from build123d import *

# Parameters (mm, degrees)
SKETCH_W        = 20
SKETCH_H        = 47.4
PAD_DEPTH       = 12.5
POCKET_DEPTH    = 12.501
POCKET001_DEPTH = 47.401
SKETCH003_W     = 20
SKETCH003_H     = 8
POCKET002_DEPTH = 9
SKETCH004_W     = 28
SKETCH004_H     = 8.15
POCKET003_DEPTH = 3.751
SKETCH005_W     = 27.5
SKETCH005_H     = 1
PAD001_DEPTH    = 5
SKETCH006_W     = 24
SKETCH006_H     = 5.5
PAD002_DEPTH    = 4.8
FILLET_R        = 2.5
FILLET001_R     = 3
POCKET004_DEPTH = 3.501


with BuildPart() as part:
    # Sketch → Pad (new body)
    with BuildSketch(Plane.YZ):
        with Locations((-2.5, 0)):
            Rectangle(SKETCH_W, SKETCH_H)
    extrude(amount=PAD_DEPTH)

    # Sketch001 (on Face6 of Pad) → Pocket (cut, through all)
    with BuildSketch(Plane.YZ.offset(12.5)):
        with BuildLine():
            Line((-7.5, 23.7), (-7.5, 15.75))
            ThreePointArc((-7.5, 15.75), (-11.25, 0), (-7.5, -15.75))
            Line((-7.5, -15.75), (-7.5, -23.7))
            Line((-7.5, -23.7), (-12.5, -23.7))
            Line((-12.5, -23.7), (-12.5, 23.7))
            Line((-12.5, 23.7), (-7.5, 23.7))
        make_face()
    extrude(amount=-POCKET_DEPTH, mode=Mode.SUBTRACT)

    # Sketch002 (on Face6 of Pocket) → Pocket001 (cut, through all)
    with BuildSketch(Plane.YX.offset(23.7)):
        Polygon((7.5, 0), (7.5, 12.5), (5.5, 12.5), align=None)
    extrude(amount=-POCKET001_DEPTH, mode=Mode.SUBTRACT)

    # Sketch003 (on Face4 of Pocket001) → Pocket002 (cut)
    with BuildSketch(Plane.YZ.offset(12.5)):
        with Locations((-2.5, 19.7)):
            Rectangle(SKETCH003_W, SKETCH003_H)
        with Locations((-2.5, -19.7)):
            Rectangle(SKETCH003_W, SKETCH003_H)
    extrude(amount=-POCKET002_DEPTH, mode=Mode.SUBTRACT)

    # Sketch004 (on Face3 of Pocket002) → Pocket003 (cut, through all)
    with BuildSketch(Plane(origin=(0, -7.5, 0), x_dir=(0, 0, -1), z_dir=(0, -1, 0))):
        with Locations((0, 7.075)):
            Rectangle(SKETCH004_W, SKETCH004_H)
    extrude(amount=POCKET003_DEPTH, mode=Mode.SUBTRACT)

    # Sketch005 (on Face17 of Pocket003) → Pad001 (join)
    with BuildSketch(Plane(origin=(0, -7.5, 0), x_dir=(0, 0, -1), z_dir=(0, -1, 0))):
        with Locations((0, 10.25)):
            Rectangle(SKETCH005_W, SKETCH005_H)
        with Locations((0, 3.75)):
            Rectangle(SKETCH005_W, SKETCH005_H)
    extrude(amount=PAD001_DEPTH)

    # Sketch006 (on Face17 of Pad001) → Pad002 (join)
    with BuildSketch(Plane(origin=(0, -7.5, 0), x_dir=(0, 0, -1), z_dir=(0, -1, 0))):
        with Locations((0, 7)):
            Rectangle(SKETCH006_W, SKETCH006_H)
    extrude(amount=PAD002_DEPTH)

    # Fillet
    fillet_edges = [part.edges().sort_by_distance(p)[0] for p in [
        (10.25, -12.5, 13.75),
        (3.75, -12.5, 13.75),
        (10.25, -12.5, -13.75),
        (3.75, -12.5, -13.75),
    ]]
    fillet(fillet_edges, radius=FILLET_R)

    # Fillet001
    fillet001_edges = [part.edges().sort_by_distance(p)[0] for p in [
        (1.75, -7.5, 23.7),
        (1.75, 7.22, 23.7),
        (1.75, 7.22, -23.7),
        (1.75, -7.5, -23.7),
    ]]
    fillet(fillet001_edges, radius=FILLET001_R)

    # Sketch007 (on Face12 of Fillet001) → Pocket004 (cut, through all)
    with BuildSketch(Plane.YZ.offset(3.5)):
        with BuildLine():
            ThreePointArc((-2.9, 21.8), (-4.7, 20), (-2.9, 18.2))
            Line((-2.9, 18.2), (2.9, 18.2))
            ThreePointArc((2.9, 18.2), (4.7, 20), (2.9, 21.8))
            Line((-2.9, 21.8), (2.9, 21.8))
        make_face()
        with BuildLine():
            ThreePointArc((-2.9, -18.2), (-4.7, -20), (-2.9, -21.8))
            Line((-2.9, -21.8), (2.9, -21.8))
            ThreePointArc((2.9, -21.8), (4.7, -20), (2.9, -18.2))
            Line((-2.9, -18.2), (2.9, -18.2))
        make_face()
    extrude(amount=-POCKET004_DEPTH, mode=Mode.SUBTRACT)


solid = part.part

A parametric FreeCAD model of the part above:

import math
import FreeCAD as App
import Part
import Sketcher

V = App.Vector
Q = App.Units.Quantity


def edges_at(feature, points):
    """Names of the edges that pass closest to the given points."""
    edges = feature.Shape.Edges
    near = lambda p: min(range(len(edges)), key=lambda i: edges[i].distToShape(Part.Vertex(*p))[0])
    return sorted({f"Edge{near(p) + 1}" for p in points})

doc = App.newDocument("Part")
body = doc.addObject("PartDesign::Body", "Body")

# Sketch on YZ plane
sketch1 = doc.addObject("Sketcher::SketchObject", "Sketch")
body.addObject(sketch1)
sketch1.AttachmentSupport = (doc.YZ_Plane, [""])
sketch1.MapMode = "FlatFace"
sketch1.addGeometry([
    Part.LineSegment(V(-12, 24, 0), V(-12, -24, 0)),
    Part.LineSegment(V(-12, -24, 0), V(8, -24, 0)),
    Part.LineSegment(V(8, -24, 0), V(8, 24, 0)),
    Part.LineSegment(V(8, 24, 0), V(-12, 24, 0)),
], False)
sketch1.addConstraint([
    Sketcher.Constraint("Coincident", 0, 2, 1, 1),
    Sketcher.Constraint("Coincident", 1, 2, 2, 1),
    Sketcher.Constraint("Coincident", 2, 2, 3, 1),
    Sketcher.Constraint("Coincident", 3, 2, 0, 1),
    Sketcher.Constraint("Vertical", 0),
    Sketcher.Constraint("Horizontal", 1),
    Sketcher.Constraint("Vertical", 2),
    Sketcher.Constraint("Horizontal", 3),
    Sketcher.Constraint("DistanceX", 1, 1, 1, 2, Q("20 mm")),
    Sketcher.Constraint("DistanceY", 0, 2, 0, 1, Q("47.4 mm")),
    Sketcher.Constraint("DistanceX", 0, 2, -1, 1, Q("12.5 mm")),
    Sketcher.Constraint("DistanceY", 0, 2, -1, 1, Q("23.7 mm")),
])
pad1 = doc.addObject("PartDesign::Pad", "Pad")
body.addObject(pad1)
pad1.Profile = sketch1
pad1.Length = 12.5

# Sketch on YZ plane
sketch2 = doc.addObject("Sketcher::SketchObject", "Sketch001")
body.addObject(sketch2)
sketch2.AttachmentSupport = (doc.YZ_Plane, [""])
sketch2.MapMode = "FlatFace"
sketch2.AttachmentOffset = App.Placement(V(0, 0, 12.5), App.Rotation())
sketch2.addGeometry([
    Part.LineSegment(V(-8, 16, 0), V(-8, 24, 0)),  # 0
    Part.LineSegment(V(-8, 24, 0), V(-12, 24, 0)),  # 1
    Part.LineSegment(V(-12, 24, 0), V(-12, -24, 0)),  # 2
    Part.LineSegment(V(-12, -24, 0), V(-8, -24, 0)),  # 3
    Part.LineSegment(V(-8, -24, 0), V(-8, -16, 0)),  # 4
    Part.ArcOfCircle(Part.Circle(V(24, 0, 0), V(0, 0, 1), 35), math.radians(153), math.radians(207)),  # 5
], False)
sketch2.addConstraint([
    Sketcher.Constraint("Coincident", 0, 2, 1, 1),
    Sketcher.Constraint("Coincident", 1, 2, 2, 1),
    Sketcher.Constraint("Coincident", 2, 2, 3, 1),
    Sketcher.Constraint("Coincident", 3, 2, 4, 1),
    Sketcher.Constraint("Coincident", 4, 2, 5, 2),
    Sketcher.Constraint("Coincident", 5, 1, 0, 1),
    Sketcher.Constraint("Vertical", 0),
    Sketcher.Constraint("Horizontal", 1),
    Sketcher.Constraint("Vertical", 2),
    Sketcher.Constraint("Horizontal", 3),
    Sketcher.Constraint("Vertical", 4),
    Sketcher.Constraint("Symmetric", 0, 2, 3, 2, -1),
    Sketcher.Constraint("PointOnObject", 5, 3, -1),
    Sketcher.Constraint("DistanceX", 1, 2, 1, 1, Q("5 mm")),
    Sketcher.Constraint("Radius", 5, Q("34.95 mm")),
    Sketcher.Constraint("DistanceY", 2, 2, 2, 1, Q("47.4 mm")),
    Sketcher.Constraint("DistanceY", 0, 1, 0, 2, Q("7.95 mm")),
    Sketcher.Constraint("DistanceX", -1, 1, 5, 3, Q("23.7 mm")),
])
pocket1 = doc.addObject("PartDesign::Pocket", "Pocket")
body.addObject(pocket1)
pocket1.Profile = sketch2
pocket1.Type = "ThroughAll"

# Sketch on XY plane
sketch3 = doc.addObject("Sketcher::SketchObject", "Sketch002")
body.addObject(sketch3)
sketch3.AttachmentSupport = (doc.XY_Plane, [""])
sketch3.MapMode = "FlatFace"
sketch3.AttachmentOffset = App.Placement(V(0, 0, -23.7), App.Rotation())
sketch3.addGeometry([
    Part.LineSegment(V(0, 7.5, 0), V(12.5, 7.5, 0)),
    Part.LineSegment(V(12.5, 7.5, 0), V(12.5, 5.5, 0)),
    Part.LineSegment(V(12.5, 5.5, 0), V(0, 7.5, 0)),
], False)
sketch3.addConstraint([
    Sketcher.Constraint("Coincident", 0, 2, 1, 1),
    Sketcher.Constraint("Coincident", 1, 2, 2, 1),
    Sketcher.Constraint("Coincident", 2, 2, 0, 1),
    Sketcher.Constraint("Horizontal", 0),
    Sketcher.Constraint("Vertical", 1),
    Sketcher.Constraint("PointOnObject", 2, 2, -2),
    Sketcher.Constraint("DistanceY", 1, 2, 1, 1, Q("2 mm")),
    Sketcher.Constraint("DistanceX", 0, 1, 0, 2, Q("12.5 mm")),
    Sketcher.Constraint("DistanceY", -1, 1, 0, 2, Q("7.5 mm")),
])
pocket2 = doc.addObject("PartDesign::Pocket", "Pocket001")
body.addObject(pocket2)
pocket2.Profile = sketch3
pocket2.Type = "ThroughAll"
pocket2.Reversed = True

# Sketch on YZ plane
sketch4 = doc.addObject("Sketcher::SketchObject", "Sketch003")
body.addObject(sketch4)
sketch4.AttachmentSupport = (doc.YZ_Plane, [""])
sketch4.MapMode = "FlatFace"
sketch4.AttachmentOffset = App.Placement(V(0, 0, 12.5), App.Rotation())
sketch4.addGeometry([
    Part.LineSegment(V(-12, 24, 0), V(-12, 16, 0)),  # 0
    Part.LineSegment(V(-12, 16, 0), V(8, 16, 0)),  # 1
    Part.LineSegment(V(8, 16, 0), V(8, 24, 0)),  # 2
    Part.LineSegment(V(8, 24, 0), V(-12, 24, 0)),  # 3
    Part.LineSegment(V(-12, -16, 0), V(-12, -24, 0)),  # 4
    Part.LineSegment(V(-12, -24, 0), V(8, -24, 0)),  # 5
    Part.LineSegment(V(8, -24, 0), V(8, -16, 0)),  # 6
    Part.LineSegment(V(8, -16, 0), V(-12, -16, 0)),  # 7
], False)
sketch4.addConstraint([
    Sketcher.Constraint("Coincident", 0, 2, 1, 1),
    Sketcher.Constraint("Coincident", 1, 2, 2, 1),
    Sketcher.Constraint("Coincident", 2, 2, 3, 1),
    Sketcher.Constraint("Coincident", 3, 2, 0, 1),
    Sketcher.Constraint("Coincident", 4, 2, 5, 1),
    Sketcher.Constraint("Coincident", 5, 2, 6, 1),
    Sketcher.Constraint("Coincident", 6, 2, 7, 1),
    Sketcher.Constraint("Coincident", 7, 2, 4, 1),
    Sketcher.Constraint("Vertical", 0),
    Sketcher.Constraint("Horizontal", 1),
    Sketcher.Constraint("Vertical", 2),
    Sketcher.Constraint("Horizontal", 3),
    Sketcher.Constraint("Vertical", 4),
    Sketcher.Constraint("Horizontal", 5),
    Sketcher.Constraint("Vertical", 6),
    Sketcher.Constraint("Horizontal", 7),
    Sketcher.Constraint("Symmetric", 3, 2, 4, 2, -1),
    Sketcher.Constraint("Symmetric", 1, 2, 6, 2, -1),
    Sketcher.Constraint("DistanceX", 1, 1, 1, 2, Q("20 mm")),
    Sketcher.Constraint("DistanceY", 0, 2, 0, 1, Q("8 mm")),
    Sketcher.Constraint("DistanceX", 0, 2, -1, 1, Q("12.5 mm")),
    Sketcher.Constraint("DistanceY", -1, 1, 0, 2, Q("15.7 mm")),
])
pocket3 = doc.addObject("PartDesign::Pocket", "Pocket002")
body.addObject(pocket3)
pocket3.Profile = sketch4
pocket3.Length = 9

# Sketch on XZ plane
sketch5 = doc.addObject("Sketcher::SketchObject", "Sketch004")
body.addObject(sketch5)
sketch5.AttachmentSupport = (doc.XZ_Plane, [""])
sketch5.MapMode = "FlatFace"
sketch5.AttachmentOffset = App.Placement(V(0, 0, 7.5), App.Rotation())
sketch5.addGeometry([
    Part.LineSegment(V(11, 14, 0), V(3, 14, 0)),
    Part.LineSegment(V(3, 14, 0), V(3, -14, 0)),
    Part.LineSegment(V(3, -14, 0), V(11, -14, 0)),
    Part.LineSegment(V(11, -14, 0), V(11, 14, 0)),
], False)
sketch5.addConstraint([
    Sketcher.Constraint("Coincident", 0, 2, 1, 1),
    Sketcher.Constraint("Coincident", 1, 2, 2, 1),
    Sketcher.Constraint("Coincident", 2, 2, 3, 1),
    Sketcher.Constraint("Coincident", 3, 2, 0, 1),
    Sketcher.Constraint("Horizontal", 0),
    Sketcher.Constraint("Vertical", 1),
    Sketcher.Constraint("Horizontal", 2),
    Sketcher.Constraint("Vertical", 3),
    Sketcher.Constraint("DistanceY", 1, 2, 1, 1, Q("28 mm")),
    Sketcher.Constraint("DistanceX", -1, 1, 0, 2, Q("3 mm")),
    Sketcher.Constraint("DistanceY", -1, 1, 0, 2, Q("14 mm")),
    Sketcher.Constraint("DistanceX", 0, 2, 0, 1, Q("8.15 mm")),
])
pocket4 = doc.addObject("PartDesign::Pocket", "Pocket003")
body.addObject(pocket4)
pocket4.Profile = sketch5
pocket4.Type = "ThroughAll"
pocket4.Reversed = True

# Sketch on XZ plane
sketch6 = doc.addObject("Sketcher::SketchObject", "Sketch005")
body.addObject(sketch6)
sketch6.AttachmentSupport = (doc.XZ_Plane, [""])
sketch6.MapMode = "FlatFace"
sketch6.AttachmentOffset = App.Placement(V(0, 0, 7.5), App.Rotation())
sketch6.addGeometry([
    Part.LineSegment(V(10.8, 13.8, 0), V(9.8, 13.8, 0)),  # 0
    Part.LineSegment(V(9.8, 13.8, 0), V(9.8, -13.8, 0)),  # 1
    Part.LineSegment(V(9.8, -13.8, 0), V(10.8, -13.8, 0)),  # 2
    Part.LineSegment(V(10.8, -13.8, 0), V(10.8, 13.8, 0)),  # 3
    Part.LineSegment(V(4.2, 13.8, 0), V(3.2, 13.8, 0)),  # 4
    Part.LineSegment(V(3.2, 13.8, 0), V(3.2, -13.8, 0)),  # 5
    Part.LineSegment(V(3.2, -13.8, 0), V(4.2, -13.8, 0)),  # 6
    Part.LineSegment(V(4.2, -13.8, 0), V(4.2, 13.8, 0)),  # 7
], False)
sketch6.addConstraint([
    Sketcher.Constraint("Coincident", 0, 2, 1, 1),
    Sketcher.Constraint("Coincident", 1, 2, 2, 1),
    Sketcher.Constraint("Coincident", 2, 2, 3, 1),
    Sketcher.Constraint("Coincident", 3, 2, 0, 1),
    Sketcher.Constraint("Coincident", 4, 2, 5, 1),
    Sketcher.Constraint("Coincident", 5, 2, 6, 1),
    Sketcher.Constraint("Coincident", 6, 2, 7, 1),
    Sketcher.Constraint("Coincident", 7, 2, 4, 1),
    Sketcher.Constraint("Horizontal", 0),
    Sketcher.Constraint("Vertical", 1),
    Sketcher.Constraint("Horizontal", 2),
    Sketcher.Constraint("Vertical", 3),
    Sketcher.Constraint("Horizontal", 4),
    Sketcher.Constraint("Vertical", 5),
    Sketcher.Constraint("Horizontal", 6),
    Sketcher.Constraint("Vertical", 7),
    Sketcher.Constraint("Horizontal", 3, 2, 4, 2),
    Sketcher.Constraint("Horizontal", 2, 2, 5, 2),
    Sketcher.Constraint("Equal", 2, 4),
    Sketcher.Constraint("DistanceX", 0, 2, 0, 1, Q("1 mm")),
    Sketcher.Constraint("DistanceY", 1, 2, 1, 1, Q("27.5 mm")),
    Sketcher.Constraint("DistanceX", 4, 2, 0, 2, Q("6.5 mm")),
    Sketcher.Constraint("DistanceX", -1, 1, 0, 2, Q("9.75 mm")),
    Sketcher.Constraint("DistanceY", -1, 1, 0, 2, Q("13.75 mm")),
])
pad2 = doc.addObject("PartDesign::Pad", "Pad001")
body.addObject(pad2)
pad2.Profile = sketch6
pad2.Length = 5

# Sketch on XZ plane
sketch7 = doc.addObject("Sketcher::SketchObject", "Sketch006")
body.addObject(sketch7)
sketch7.AttachmentSupport = (doc.XZ_Plane, [""])
sketch7.MapMode = "FlatFace"
sketch7.AttachmentOffset = App.Placement(V(0, 0, 7.5), App.Rotation())
sketch7.addGeometry([
    Part.LineSegment(V(10, 12, 0), V(4, 12, 0)),
    Part.LineSegment(V(4, 12, 0), V(4, -12, 0)),
    Part.LineSegment(V(4, -12, 0), V(10, -12, 0)),
    Part.LineSegment(V(10, -12, 0), V(10, 12, 0)),
], False)
sketch7.addConstraint([
    Sketcher.Constraint("Coincident", 0, 2, 1, 1),
    Sketcher.Constraint("Coincident", 1, 2, 2, 1),
    Sketcher.Constraint("Coincident", 2, 2, 3, 1),
    Sketcher.Constraint("Coincident", 3, 2, 0, 1),
    Sketcher.Constraint("Horizontal", 0),
    Sketcher.Constraint("Vertical", 1),
    Sketcher.Constraint("Horizontal", 2),
    Sketcher.Constraint("Vertical", 3),
    Sketcher.Constraint("DistanceY", 1, 2, 1, 1, Q("24 mm")),
    Sketcher.Constraint("DistanceX", 0, 2, 0, 1, Q("5.5 mm")),
    Sketcher.Constraint("DistanceY", -1, 1, 0, 2, Q("12 mm")),
    Sketcher.Constraint("DistanceX", -1, 1, 0, 2, Q("4.25 mm")),
])
pad3 = doc.addObject("PartDesign::Pad", "Pad002")
body.addObject(pad3)
pad3.Profile = sketch7
pad3.Length = 4.8
doc.recompute()

fillet = doc.addObject("PartDesign::Fillet", "Fillet")
body.addObject(fillet)
fillet.Base = (pad3, edges_at(pad3, [
    (10.25, -12.5, 13.75),
    (3.75, -12.5, 13.75),
    (10.25, -12.5, -13.75),
    (3.75, -12.5, -13.75),
]))
fillet.Radius = 2.5
doc.recompute()

fillet2 = doc.addObject("PartDesign::Fillet", "Fillet001")
body.addObject(fillet2)
fillet2.Base = (fillet, edges_at(fillet, [
    (1.75, -7.5, 23.7),
    (1.75, 7.22, 23.7),
    (1.75, 7.22, -23.7),
    (1.75, -7.5, -23.7),
]))
fillet2.Radius = 3

# Sketch on YZ plane
sketch8 = doc.addObject("Sketcher::SketchObject", "Sketch007")
body.addObject(sketch8)
sketch8.AttachmentSupport = (doc.YZ_Plane, [""])
sketch8.MapMode = "FlatFace"
sketch8.AttachmentOffset = App.Placement(V(0, 0, 3.5), App.Rotation())
sketch8.addGeometry([
    Part.ArcOfCircle(Part.Circle(V(-2.9, 20, 0), V(0, 0, 1), 1.8), math.radians(90), math.radians(270)),  # 0
    Part.LineSegment(V(-2.9, 18.2, 0), V(2.9, 18.2, 0)),  # 1
    Part.ArcOfCircle(Part.Circle(V(2.9, 20, 0), V(0, 0, 1), 1.8), math.radians(-90), math.radians(90)),  # 2
    Part.LineSegment(V(2.9, 21.8, 0), V(-2.9, 21.8, 0)),  # 3
    Part.ArcOfCircle(Part.Circle(V(-2.9, -20, 0), V(0, 0, 1), 1.8), math.radians(90), math.radians(270)),  # 4
    Part.LineSegment(V(-2.9, -21.8, 0), V(2.9, -21.8, 0)),  # 5
    Part.ArcOfCircle(Part.Circle(V(2.9, -20, 0), V(0, 0, 1), 1.8), math.radians(-90), math.radians(90)),  # 6
    Part.LineSegment(V(2.9, -18.2, 0), V(-2.9, -18.2, 0)),  # 7
], False)
sketch8.addConstraint([
    Sketcher.Constraint("Tangent", 0, 2, 1, 1),
    Sketcher.Constraint("Tangent", 1, 2, 2, 1),
    Sketcher.Constraint("Tangent", 2, 2, 3, 1),
    Sketcher.Constraint("Tangent", 3, 2, 0, 1),
    Sketcher.Constraint("Tangent", 4, 2, 5, 1),
    Sketcher.Constraint("Tangent", 5, 2, 6, 1),
    Sketcher.Constraint("Tangent", 6, 2, 7, 1),
    Sketcher.Constraint("Tangent", 7, 2, 4, 1),
    Sketcher.Constraint("Horizontal", 1),
    Sketcher.Constraint("Horizontal", 3),
    Sketcher.Constraint("Horizontal", 5),
    Sketcher.Constraint("Horizontal", 7),
    Sketcher.Constraint("Equal", 2, 4),
    Sketcher.Constraint("Symmetric", 2, 3, 4, 3, -1, 1),
    Sketcher.Constraint("Vertical", 0, 3, 4, 3),
    Sketcher.Constraint("Vertical", 2, 3, 6, 3),
    Sketcher.Constraint("Radius", 0, Q("1.8 mm")),
    Sketcher.Constraint("DistanceX", 1, 1, 1, 2, Q("5.8 mm")),
    Sketcher.Constraint("DistanceY", -1, 1, 0, 3, Q("20 mm")),
])
pocket5 = doc.addObject("PartDesign::Pocket", "Pocket004")
body.addObject(pocket5)
pocket5.Profile = sketch8
pocket5.Type = "ThroughAll"

doc.recompute()
